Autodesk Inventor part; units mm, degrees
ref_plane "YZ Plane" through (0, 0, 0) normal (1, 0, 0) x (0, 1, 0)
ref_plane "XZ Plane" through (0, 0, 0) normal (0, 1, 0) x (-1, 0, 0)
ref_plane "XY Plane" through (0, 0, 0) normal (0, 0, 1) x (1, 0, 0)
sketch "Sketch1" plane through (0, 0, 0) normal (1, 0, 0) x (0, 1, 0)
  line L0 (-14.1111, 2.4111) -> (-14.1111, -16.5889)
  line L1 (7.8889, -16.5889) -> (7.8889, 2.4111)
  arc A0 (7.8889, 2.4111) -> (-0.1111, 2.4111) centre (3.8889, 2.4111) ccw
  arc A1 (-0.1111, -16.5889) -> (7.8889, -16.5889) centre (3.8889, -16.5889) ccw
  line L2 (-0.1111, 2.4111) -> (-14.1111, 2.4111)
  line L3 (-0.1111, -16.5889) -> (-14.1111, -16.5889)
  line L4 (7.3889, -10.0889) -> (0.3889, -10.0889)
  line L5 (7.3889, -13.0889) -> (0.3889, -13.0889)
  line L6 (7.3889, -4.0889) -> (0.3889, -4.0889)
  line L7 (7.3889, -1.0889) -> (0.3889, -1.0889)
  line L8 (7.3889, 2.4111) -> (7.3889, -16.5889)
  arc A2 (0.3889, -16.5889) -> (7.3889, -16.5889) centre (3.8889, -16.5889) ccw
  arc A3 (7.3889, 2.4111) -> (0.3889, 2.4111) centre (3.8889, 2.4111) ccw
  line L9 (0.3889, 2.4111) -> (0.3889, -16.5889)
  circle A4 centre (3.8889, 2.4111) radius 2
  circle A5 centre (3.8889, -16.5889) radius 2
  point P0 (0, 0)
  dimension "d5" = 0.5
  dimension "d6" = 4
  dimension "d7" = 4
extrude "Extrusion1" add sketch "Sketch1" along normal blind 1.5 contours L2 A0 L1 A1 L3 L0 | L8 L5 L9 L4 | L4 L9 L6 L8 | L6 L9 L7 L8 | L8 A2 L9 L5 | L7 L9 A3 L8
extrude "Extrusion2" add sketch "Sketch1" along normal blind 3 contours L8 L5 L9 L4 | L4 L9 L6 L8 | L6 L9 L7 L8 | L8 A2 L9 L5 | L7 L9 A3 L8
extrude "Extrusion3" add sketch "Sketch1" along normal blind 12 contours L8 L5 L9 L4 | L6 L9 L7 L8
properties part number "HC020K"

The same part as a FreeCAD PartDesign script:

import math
import FreeCAD as App
import Part
import Sketcher

V = App.Vector


def add_polygon(sketch, points):
    """Adds a closed chain of lines whose ends are joined by coincident constraints."""
    first, n = sketch.GeometryCount, len(points)
    for a, b in zip(points, points[1:] + points[:1]):
        sketch.addGeometry(Part.LineSegment(App.Vector(*a, 0), App.Vector(*b, 0)), False)
    for i in range(n):
        sketch.addConstraint(Sketcher.Constraint("Coincident", first + i, 2, first + (i + 1) % n, 1))

doc = App.newDocument("Part")
body = doc.addObject("PartDesign::Body", "Body")

# Sketch on YZ plane
sketch1 = body.newObject("Sketcher::SketchObject", "Sketch")
sketch1.AttachmentSupport = (doc.getObject("YZ_Plane"), [""])
sketch1.MapMode = "FlatFace"
sketch1.addGeometry([
    Part.LineSegment(V(-0.1, 2.4, 0), V(-14.1, 2.4, 0)),  # 0
    Part.LineSegment(V(-14.1, 2.4, 0), V(-14.1, -16.6, 0)),  # 1
    Part.LineSegment(V(-14.1, -16.6, 0), V(-0.1, -16.6, 0)),  # 2
    Part.ArcOfCircle(Part.Circle(V(3.9, -16.6, 0), V(0, 0, 1), 4), math.radians(180), math.radians(360)),  # 3
    Part.LineSegment(V(7.9, -16.6, 0), V(7.9, 2.4, 0)),  # 4
    Part.ArcOfCircle(Part.Circle(V(3.9, 2.4, 0), V(0, 0, 1), 4), math.radians(0), math.radians(180)),  # 5
    Part.Circle(V(3.9, 2.4, 0), V(0, 0, 1), 2),  # 6
    Part.Circle(V(3.9, -16.6, 0), V(0, 0, 1), 2),  # 7
], False)
sketch1.addConstraint([
    Sketcher.Constraint("Coincident", 0, 2, 1, 1),
    Sketcher.Constraint("Coincident", 1, 2, 2, 1),
    Sketcher.Constraint("Coincident", 2, 2, 3, 1),
    Sketcher.Constraint("Tangent", 3, 2, 4, 1),
    Sketcher.Constraint("Tangent", 4, 2, 5, 1),
    Sketcher.Constraint("Coincident", 5, 2, 0, 1),
    Sketcher.Constraint("Horizontal", 0),
    Sketcher.Constraint("Vertical", 1),
    Sketcher.Constraint("Horizontal", 2),
    Sketcher.Constraint("Vertical", 4),
    Sketcher.Constraint("Coincident", 6, 3, 5, 3),
    Sketcher.Constraint("Coincident", 7, 3, 3, 3),
    Sketcher.Constraint("Equal", 3, 5),
    Sketcher.Constraint("Equal", 6, 7),
    Sketcher.Constraint("Horizontal", 6, 3, 0, 2),
    Sketcher.Constraint("Horizontal", 7, 3, 1, 2),
    Sketcher.Constraint("Diameter", 6, 4.0),
    Sketcher.Constraint("Radius", 3, 4.0),
    Sketcher.Constraint("DistanceX", 0, 2, 0, 1, 14.0),
    Sketcher.Constraint("DistanceY", 1, 2, 1, 1, 19.0),
    Sketcher.Constraint("DistanceX", -1, 1, 3, 3, 3.889),
    Sketcher.Constraint("DistanceY", 3, 3, -1, 1, 16.589),
])
pad1 = body.newObject("PartDesign::Pad", "Pad")
pad1.Profile = sketch1
pad1.Length = 1.5

# Sketch on YZ plane
sketch2 = body.newObject("Sketcher::SketchObject", "Sketch001")
sketch2.AttachmentSupport = (doc.getObject("YZ_Plane"), [""])
sketch2.MapMode = "FlatFace"
sketch2.addGeometry([
    Part.ArcOfCircle(Part.Circle(V(3.9, 2.4, 0), V(0, 0, 1), 3.5), math.radians(0), math.radians(180)),  # 0
    Part.LineSegment(V(0.4, 2.4, 0), V(0.4, -16.6, 0)),  # 1
    Part.ArcOfCircle(Part.Circle(V(3.9, -16.6, 0), V(0, 0, 1), 3.5), math.radians(180), math.radians(360)),  # 2
    Part.LineSegment(V(7.4, -16.6, 0), V(7.4, 2.4, 0)),  # 3
    Part.Circle(V(3.9, -16.6, 0), V(0, 0, 1), 2),  # 4
    Part.Circle(V(3.9, 2.4, 0), V(0, 0, 1), 2),  # 5
], False)
sketch2.addConstraint([
    Sketcher.Constraint("Tangent", 0, 2, 1, 1),
    Sketcher.Constraint("Tangent", 1, 2, 2, 1),
    Sketcher.Constraint("Tangent", 2, 2, 3, 1),
    Sketcher.Constraint("Tangent", 3, 2, 0, 1),
    Sketcher.Constraint("Vertical", 1),
    Sketcher.Constraint("Vertical", 3),
    Sketcher.Constraint("Coincident", 4, 3, 2, 3),
    Sketcher.Constraint("Coincident", 5, 3, 0, 3),
    Sketcher.Constraint("Equal", 4, 5),
    Sketcher.Constraint("Diameter", 4, 4.0),
    Sketcher.Constraint("Radius", 0, 3.5),
    Sketcher.Constraint("DistanceY", 1, 2, 1, 1, 19.0),
    Sketcher.Constraint("DistanceX", -1, 1, 0, 3, 3.889),
    Sketcher.Constraint("DistanceY", -1, 1, 0, 3, 2.411),
])
pad2 = body.newObject("PartDesign::Pad", "Pad001")
pad2.Profile = sketch2
pad2.Length = 3

# Sketch on YZ plane
sketch3 = body.newObject("Sketcher::SketchObject", "Sketch002")
sketch3.AttachmentSupport = (doc.getObject("YZ_Plane"), [""])
sketch3.MapMode = "FlatFace"
add_polygon(sketch3, [(7.4, -13.1), (7.4, -10.1), (0.4, -10.1), (0.4, -13.1)])  # lines 0-3
add_polygon(sketch3, [(0.4, -4.1), (7.4, -4.1), (7.4, -1.1), (0.4, -1.1)])  # lines 4-7
sketch3.addConstraint([
    Sketcher.Constraint("Vertical", 0),
    Sketcher.Constraint("Horizontal", 1),
    Sketcher.Constraint("Vertical", 2),
    Sketcher.Constraint("Horizontal", 3),
    Sketcher.Constraint("Horizontal", 4),
    Sketcher.Constraint("Vertical", 5),
    Sketcher.Constraint("Horizontal", 6),
    Sketcher.Constraint("Vertical", 7),
    Sketcher.Constraint("Vertical", 3, 2, 4, 2),
    Sketcher.Constraint("Vertical", 2, 2, 6, 2),
    Sketcher.Constraint("Equal", 2, 5),
    Sketcher.Constraint("DistanceX", 1, 2, 1, 1, 7.0),
    Sketcher.Constraint("DistanceY", 0, 1, 0, 2, 3.0),
    Sketcher.Constraint("DistanceY", 0, 2, 4, 2, 6.0),
    Sketcher.Constraint("DistanceX", -1, 1, 0, 2, 7.389),
    Sketcher.Constraint("DistanceY", 0, 2, -1, 1, 10.089),
])
pad3 = body.newObject("PartDesign::Pad", "Pad002")
pad3.Profile = sketch3
pad3.Length = 12

doc.recompute()
